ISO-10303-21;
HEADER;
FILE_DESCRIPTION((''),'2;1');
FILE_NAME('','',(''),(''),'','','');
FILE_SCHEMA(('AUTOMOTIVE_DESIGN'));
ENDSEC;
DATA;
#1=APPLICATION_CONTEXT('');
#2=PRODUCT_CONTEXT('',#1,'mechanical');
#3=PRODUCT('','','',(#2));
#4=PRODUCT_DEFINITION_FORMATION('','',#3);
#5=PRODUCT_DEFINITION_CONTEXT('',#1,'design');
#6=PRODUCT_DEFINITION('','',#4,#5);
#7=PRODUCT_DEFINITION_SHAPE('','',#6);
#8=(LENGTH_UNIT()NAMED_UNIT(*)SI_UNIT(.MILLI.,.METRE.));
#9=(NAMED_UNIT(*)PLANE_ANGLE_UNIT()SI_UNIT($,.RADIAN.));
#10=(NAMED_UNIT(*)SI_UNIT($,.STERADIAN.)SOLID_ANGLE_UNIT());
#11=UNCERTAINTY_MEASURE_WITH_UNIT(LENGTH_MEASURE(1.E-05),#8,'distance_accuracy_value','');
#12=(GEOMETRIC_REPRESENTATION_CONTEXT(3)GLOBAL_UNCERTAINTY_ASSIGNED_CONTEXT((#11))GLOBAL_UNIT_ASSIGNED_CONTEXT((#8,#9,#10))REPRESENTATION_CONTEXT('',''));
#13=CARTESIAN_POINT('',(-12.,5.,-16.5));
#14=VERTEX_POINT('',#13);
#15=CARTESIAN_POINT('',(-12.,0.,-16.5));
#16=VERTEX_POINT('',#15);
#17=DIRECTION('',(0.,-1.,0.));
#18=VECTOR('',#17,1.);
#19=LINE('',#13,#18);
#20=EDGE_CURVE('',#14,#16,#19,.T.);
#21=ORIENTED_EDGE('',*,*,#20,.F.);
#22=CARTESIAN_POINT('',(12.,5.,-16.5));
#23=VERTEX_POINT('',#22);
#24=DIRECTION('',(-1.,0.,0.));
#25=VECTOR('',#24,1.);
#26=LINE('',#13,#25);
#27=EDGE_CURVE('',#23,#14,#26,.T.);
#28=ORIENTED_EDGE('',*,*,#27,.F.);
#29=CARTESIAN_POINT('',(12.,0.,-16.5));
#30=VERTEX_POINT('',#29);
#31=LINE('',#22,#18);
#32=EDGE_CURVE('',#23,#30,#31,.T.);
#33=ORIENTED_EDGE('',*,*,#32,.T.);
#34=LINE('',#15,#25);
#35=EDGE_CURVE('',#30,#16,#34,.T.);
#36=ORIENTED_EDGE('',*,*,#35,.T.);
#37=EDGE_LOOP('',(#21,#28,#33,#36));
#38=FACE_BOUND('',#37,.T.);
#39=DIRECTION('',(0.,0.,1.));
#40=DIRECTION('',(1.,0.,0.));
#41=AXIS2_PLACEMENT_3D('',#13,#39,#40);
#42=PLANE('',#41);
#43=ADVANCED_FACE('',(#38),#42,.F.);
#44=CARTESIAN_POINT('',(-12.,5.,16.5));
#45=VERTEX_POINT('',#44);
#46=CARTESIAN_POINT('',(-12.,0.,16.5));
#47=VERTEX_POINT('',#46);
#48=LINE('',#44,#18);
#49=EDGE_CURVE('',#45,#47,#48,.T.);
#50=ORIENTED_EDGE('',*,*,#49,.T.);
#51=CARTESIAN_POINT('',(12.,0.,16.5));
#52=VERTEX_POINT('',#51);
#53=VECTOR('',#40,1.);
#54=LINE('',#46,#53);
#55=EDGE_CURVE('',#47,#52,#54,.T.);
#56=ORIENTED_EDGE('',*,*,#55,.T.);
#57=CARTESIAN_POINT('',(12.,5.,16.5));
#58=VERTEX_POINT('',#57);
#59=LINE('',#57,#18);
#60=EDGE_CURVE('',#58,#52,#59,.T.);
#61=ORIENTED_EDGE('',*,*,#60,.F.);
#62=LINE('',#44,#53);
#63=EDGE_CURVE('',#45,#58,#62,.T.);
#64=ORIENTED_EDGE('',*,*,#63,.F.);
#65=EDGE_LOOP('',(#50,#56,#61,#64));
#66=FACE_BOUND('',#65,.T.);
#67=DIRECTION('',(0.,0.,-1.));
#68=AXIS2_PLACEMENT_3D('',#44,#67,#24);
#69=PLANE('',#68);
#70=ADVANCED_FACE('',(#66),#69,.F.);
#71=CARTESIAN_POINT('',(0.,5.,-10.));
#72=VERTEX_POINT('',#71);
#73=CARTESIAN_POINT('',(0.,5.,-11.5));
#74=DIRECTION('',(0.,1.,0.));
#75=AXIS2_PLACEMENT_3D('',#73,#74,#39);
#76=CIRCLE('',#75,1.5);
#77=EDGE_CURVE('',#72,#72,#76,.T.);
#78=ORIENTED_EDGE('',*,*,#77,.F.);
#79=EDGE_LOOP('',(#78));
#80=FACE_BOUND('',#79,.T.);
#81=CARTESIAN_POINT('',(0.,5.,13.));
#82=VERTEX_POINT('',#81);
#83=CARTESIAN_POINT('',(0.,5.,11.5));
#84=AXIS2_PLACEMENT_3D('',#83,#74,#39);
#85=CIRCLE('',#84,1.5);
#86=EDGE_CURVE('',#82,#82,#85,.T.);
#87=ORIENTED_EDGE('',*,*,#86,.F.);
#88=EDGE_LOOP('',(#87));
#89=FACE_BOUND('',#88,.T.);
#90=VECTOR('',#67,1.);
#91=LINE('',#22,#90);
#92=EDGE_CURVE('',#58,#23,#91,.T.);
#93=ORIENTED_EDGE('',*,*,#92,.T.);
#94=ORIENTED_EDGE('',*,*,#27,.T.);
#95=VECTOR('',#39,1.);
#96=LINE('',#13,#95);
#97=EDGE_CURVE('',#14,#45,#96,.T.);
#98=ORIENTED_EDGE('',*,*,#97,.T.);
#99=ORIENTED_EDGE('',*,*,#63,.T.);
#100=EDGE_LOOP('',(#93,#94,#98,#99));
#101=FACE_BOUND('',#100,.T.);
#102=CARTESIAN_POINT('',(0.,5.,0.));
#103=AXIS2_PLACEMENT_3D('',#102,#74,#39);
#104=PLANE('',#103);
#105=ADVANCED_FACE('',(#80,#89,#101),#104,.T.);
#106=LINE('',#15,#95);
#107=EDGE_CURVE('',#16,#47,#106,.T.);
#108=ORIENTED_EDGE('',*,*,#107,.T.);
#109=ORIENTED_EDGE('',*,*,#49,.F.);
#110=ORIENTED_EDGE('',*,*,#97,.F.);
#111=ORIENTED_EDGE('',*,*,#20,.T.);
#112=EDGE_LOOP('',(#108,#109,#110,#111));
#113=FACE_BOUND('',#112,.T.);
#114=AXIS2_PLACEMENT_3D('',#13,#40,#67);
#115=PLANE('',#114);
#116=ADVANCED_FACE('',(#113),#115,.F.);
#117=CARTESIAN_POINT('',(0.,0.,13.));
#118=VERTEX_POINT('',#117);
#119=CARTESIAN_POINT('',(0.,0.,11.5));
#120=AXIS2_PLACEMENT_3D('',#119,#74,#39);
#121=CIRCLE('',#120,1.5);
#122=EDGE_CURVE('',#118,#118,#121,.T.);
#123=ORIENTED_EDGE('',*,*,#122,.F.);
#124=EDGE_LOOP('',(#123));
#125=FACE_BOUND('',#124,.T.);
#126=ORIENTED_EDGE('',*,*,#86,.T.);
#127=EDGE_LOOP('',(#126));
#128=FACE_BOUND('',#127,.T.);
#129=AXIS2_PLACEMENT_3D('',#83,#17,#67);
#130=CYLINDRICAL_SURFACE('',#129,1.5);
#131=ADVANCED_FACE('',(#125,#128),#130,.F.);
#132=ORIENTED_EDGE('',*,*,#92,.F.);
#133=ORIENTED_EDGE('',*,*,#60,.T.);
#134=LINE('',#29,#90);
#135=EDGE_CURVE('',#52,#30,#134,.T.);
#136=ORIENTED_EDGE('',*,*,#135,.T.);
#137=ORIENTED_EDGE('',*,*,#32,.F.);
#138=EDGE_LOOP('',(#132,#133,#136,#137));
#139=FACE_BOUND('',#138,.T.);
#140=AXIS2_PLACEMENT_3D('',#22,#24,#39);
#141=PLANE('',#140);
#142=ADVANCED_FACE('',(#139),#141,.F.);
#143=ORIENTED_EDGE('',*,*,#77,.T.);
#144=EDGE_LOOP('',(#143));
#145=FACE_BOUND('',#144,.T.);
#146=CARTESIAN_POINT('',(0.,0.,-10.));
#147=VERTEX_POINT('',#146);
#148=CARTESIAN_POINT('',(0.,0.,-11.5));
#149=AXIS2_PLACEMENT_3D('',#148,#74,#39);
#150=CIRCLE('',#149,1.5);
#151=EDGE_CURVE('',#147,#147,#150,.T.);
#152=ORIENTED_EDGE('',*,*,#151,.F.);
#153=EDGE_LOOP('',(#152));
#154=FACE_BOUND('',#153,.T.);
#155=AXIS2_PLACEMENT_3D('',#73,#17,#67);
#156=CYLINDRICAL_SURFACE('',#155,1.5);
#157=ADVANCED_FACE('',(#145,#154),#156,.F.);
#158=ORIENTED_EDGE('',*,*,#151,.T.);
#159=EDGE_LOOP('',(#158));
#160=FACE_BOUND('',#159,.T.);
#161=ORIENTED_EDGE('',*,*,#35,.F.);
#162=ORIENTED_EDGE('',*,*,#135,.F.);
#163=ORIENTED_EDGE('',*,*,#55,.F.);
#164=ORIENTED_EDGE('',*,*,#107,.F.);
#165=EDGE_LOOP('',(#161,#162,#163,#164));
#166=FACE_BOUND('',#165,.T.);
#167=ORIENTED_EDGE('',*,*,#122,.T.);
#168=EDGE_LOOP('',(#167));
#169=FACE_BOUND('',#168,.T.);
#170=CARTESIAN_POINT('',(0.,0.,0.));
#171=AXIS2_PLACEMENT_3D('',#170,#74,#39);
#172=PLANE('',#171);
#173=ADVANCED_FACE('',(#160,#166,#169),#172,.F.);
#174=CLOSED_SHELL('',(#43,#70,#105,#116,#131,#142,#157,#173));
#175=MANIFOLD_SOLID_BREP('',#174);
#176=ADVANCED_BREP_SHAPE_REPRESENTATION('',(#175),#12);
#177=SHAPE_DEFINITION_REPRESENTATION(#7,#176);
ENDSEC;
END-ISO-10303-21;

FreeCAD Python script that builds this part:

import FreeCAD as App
import Part
import Sketcher
from FreeCAD import Vector


def add_polygon(sketch, points):
    """Adds a closed chain of lines whose ends are joined by coincident constraints."""
    first, n = sketch.GeometryCount, len(points)
    for a, b in zip(points, points[1:] + points[:1]):
        sketch.addGeometry(Part.LineSegment(App.Vector(*a, 0), App.Vector(*b, 0)), False)
    for i in range(n):
        sketch.addConstraint(Sketcher.Constraint("Coincident", first + i, 2, first + (i + 1) % n, 1))

doc = App.newDocument("Part")
body = doc.addObject("PartDesign::Body", "Body")

# Sketch on XZ plane
sketch1 = body.newObject("Sketcher::SketchObject", "Sketch")
sketch1.AttachmentSupport = (doc.getObject("XZ_Plane"), [""])
sketch1.MapMode = "FlatFace"
add_polygon(sketch1, [(-12, -16.5), (-12, 16.5), (12, 16.5), (12, -16.5)])  # lines 0-3
sketch1.addGeometry(Part.Circle(Vector(0, 11.5, 0), Vector(0, 0, 1), 1.5), False)  # 4
sketch1.addGeometry(Part.Circle(Vector(0, -11.5, 0), Vector(0, 0, 1), 1.5), False)  # 5
sketch1.addConstraint([
    Sketcher.Constraint("Vertical", 0),
    Sketcher.Constraint("Horizontal", 1),
    Sketcher.Constraint("Vertical", 2),
    Sketcher.Constraint("Horizontal", 3),
    Sketcher.Constraint("Equal", 4, 5),
    Sketcher.Constraint("Symmetric", 4, 3, 5, 3, -1, 1),
    Sketcher.Constraint("Symmetric", 0, 2, 2, 2, -1, 1),
    Sketcher.Constraint("PointOnObject", 4, 3, -2),
    Sketcher.Constraint("Diameter", 4, 3.0),
    Sketcher.Constraint("DistanceX", 1, 1, 1, 2, 24.0),
    Sketcher.Constraint("DistanceY", 0, 1, 0, 2, 33.0),
    Sketcher.Constraint("DistanceY", 5, 3, 4, 3, 23.0),
])
pad1 = body.newObject("PartDesign::Pad", "Pad")
pad1.Profile = sketch1
pad1.Length = 5
pad1.Reversed = True

doc.recompute()
